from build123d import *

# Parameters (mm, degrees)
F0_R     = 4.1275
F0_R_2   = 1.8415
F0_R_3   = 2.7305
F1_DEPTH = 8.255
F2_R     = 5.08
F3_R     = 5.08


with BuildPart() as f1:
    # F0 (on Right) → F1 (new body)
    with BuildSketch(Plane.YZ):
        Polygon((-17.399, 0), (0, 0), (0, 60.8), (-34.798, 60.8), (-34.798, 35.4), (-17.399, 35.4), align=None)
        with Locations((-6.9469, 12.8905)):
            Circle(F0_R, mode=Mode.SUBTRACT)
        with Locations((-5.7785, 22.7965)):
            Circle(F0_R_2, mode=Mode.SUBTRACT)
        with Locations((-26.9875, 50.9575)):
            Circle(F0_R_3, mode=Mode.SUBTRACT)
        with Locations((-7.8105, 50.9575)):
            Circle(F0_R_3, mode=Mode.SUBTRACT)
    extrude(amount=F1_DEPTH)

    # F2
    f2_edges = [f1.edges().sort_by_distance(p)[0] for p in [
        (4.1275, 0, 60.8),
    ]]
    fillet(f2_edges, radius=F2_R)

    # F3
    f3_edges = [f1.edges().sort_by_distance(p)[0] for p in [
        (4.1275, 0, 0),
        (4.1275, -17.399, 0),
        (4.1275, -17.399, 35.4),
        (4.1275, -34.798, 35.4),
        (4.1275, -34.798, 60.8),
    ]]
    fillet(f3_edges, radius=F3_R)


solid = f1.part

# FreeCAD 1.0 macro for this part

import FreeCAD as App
import Part
import Sketcher
Q = App.Units.Quantity


def edges_at(feature, points):
    """Names of the edges that pass closest to the given points."""
    edges = feature.Shape.Edges
    near = lambda p: min(range(len(edges)), key=lambda i: edges[i].distToShape(Part.Vertex(*p))[0])
    return sorted({f"Edge{near(p) + 1}" for p in points})


def add_polygon(sketch, points):
    """Adds a closed chain of lines whose ends are joined by coincident constraints."""
    first, n = sketch.GeometryCount, len(points)
    for a, b in zip(points, points[1:] + points[:1]):
        sketch.addGeometry(Part.LineSegment(App.Vector(*a, 0), App.Vector(*b, 0)), False)
    for i in range(n):
        sketch.addConstraint(Sketcher.Constraint("Coincident", first + i, 2, first + (i + 1) % n, 1))

doc = App.newDocument("Part")
params = doc.addObject("Spreadsheet::Sheet", "Params")
for row, (alias, value) in enumerate([
    ("sketch1_height", "1 in"),
    ("sketch1_diameter", "0.325 in"),
    ("sketch1_diameter2", "0.145 in"),
    ("sketch1_diameter3", "0.215 in"),
    ("sketch1_width", "1.37 in"),
    ("pad1_length", "0.325 in"),
    ("fillet_radius", "0.2 in"),
    ("fillet2_radius", "0.2 in"),
], start=1):
    params.set(f"A{row}", alias)
    params.set(f"B{row}", "=" + value)
    params.setAlias(f"B{row}", alias)

body = doc.addObject("PartDesign::Body", "Body")

sketch1 = body.newObject("Sketcher::SketchObject", "Sketch")
sketch1.AttachmentSupport = (doc.getObject("YZ_Plane"), [""])
sketch1.MapMode = "FlatFace"
add_polygon(sketch1, [(-17.4, 0), (0, 0), (0, 60.8), (-34.8, 60.8), (-34.8, 35.4), (-17.4, 35.4)])
sketch1.addGeometry(Part.Circle(App.Vector(-6.9, 12.9, 0), App.Vector(0, 0, 1), 4.1), False)
sketch1.addGeometry(Part.Circle(App.Vector(-5.8, 22.8, 0), App.Vector(0, 0, 1), 1.8), False)
sketch1.addGeometry(Part.Circle(App.Vector(-27, 51, 0), App.Vector(0, 0, 1), 2.7), False)
sketch1.addGeometry(Part.Circle(App.Vector(-7.8, 51, 0), App.Vector(0, 0, 1), 2.7), False)
sketch1.addConstraint([
    Sketcher.Constraint("Horizontal", 0),
    Sketcher.Constraint("Vertical", 1),
    Sketcher.Constraint("Horizontal", 2),
    Sketcher.Constraint("Vertical", 3),
    Sketcher.Constraint("Horizontal", 4),
    Sketcher.Constraint("Vertical", 5),
    Sketcher.Constraint("Coincident", 0, 2, -1, 1),
    Sketcher.Constraint("Equal", 8, 9),
    Sketcher.Constraint("Horizontal", 8, 3, 9, 3),
    Sketcher.Constraint("Equal", 0, 4),
    Sketcher.Constraint("DistanceY", 3, 2, 3, 1, Q("1 in")),
    Sketcher.Constraint("Diameter", 6, Q("0.325 in")),
    Sketcher.Constraint("Diameter", 7, Q("0.145 in")),
    Sketcher.Constraint("Diameter", 8, Q("0.215 in")),
    Sketcher.Constraint("DistanceX", 2, 2, 2, 1, Q("1.37 in")),
    Sketcher.Constraint("DistanceY", 6, 3, 7, 3, Q("0.39 in")),
    Sketcher.Constraint("DistanceX", 9, 3, 7, 3, Q("0.08 in")),
    Sketcher.Constraint("DistanceX", 8, 3, -1, 1, Q("1.0625 in")),
    Sketcher.Constraint("DistanceX", 6, 3, 7, 3, Q("0.046 in")),
    Sketcher.Constraint("DistanceX", 8, 3, 7, 3, Q("0.835 in")),
    Sketcher.Constraint("DistanceY", 1, 1, 1, 2, 60.8),
    Sketcher.Constraint("DistanceY", -1, 1, 6, 3, Q("0.5075 in")),
    Sketcher.Constraint("DistanceY", 9, 3, 1, 2, Q("0.3875 in")),
])
sketch1.setExpression("Constraints[16]", "Params.sketch1_height")
sketch1.setExpression("Constraints[17]", "Params.sketch1_diameter")
sketch1.setExpression("Constraints[18]", "Params.sketch1_diameter2")
sketch1.setExpression("Constraints[19]", "Params.sketch1_diameter3")
sketch1.setExpression("Constraints[20]", "Params.sketch1_width")
pad1 = body.newObject("PartDesign::Pad", "Pad")
pad1.Profile = sketch1
pad1.setExpression("Length", "Params.pad1_length")
doc.recompute()

fillet = body.newObject("PartDesign::Fillet", "Fillet")
fillet.Base = (pad1, edges_at(pad1, [(4.128, 0, 60.8)]))
fillet.setExpression("Radius", "Params.fillet_radius")
doc.recompute()

fillet2 = body.newObject("PartDesign::Fillet", "Fillet001")
fillet2.Base = (fillet, edges_at(fillet, [
    (4.128, 0, 0),
    (4.128, -17.399, 0),
    (4.128, -17.399, 35.4),
    (4.128, -34.798, 35.4),
    (4.128, -34.798, 60.8),
]))
fillet2.setExpression("Radius", "Params.fillet2_radius")

doc.recompute()
